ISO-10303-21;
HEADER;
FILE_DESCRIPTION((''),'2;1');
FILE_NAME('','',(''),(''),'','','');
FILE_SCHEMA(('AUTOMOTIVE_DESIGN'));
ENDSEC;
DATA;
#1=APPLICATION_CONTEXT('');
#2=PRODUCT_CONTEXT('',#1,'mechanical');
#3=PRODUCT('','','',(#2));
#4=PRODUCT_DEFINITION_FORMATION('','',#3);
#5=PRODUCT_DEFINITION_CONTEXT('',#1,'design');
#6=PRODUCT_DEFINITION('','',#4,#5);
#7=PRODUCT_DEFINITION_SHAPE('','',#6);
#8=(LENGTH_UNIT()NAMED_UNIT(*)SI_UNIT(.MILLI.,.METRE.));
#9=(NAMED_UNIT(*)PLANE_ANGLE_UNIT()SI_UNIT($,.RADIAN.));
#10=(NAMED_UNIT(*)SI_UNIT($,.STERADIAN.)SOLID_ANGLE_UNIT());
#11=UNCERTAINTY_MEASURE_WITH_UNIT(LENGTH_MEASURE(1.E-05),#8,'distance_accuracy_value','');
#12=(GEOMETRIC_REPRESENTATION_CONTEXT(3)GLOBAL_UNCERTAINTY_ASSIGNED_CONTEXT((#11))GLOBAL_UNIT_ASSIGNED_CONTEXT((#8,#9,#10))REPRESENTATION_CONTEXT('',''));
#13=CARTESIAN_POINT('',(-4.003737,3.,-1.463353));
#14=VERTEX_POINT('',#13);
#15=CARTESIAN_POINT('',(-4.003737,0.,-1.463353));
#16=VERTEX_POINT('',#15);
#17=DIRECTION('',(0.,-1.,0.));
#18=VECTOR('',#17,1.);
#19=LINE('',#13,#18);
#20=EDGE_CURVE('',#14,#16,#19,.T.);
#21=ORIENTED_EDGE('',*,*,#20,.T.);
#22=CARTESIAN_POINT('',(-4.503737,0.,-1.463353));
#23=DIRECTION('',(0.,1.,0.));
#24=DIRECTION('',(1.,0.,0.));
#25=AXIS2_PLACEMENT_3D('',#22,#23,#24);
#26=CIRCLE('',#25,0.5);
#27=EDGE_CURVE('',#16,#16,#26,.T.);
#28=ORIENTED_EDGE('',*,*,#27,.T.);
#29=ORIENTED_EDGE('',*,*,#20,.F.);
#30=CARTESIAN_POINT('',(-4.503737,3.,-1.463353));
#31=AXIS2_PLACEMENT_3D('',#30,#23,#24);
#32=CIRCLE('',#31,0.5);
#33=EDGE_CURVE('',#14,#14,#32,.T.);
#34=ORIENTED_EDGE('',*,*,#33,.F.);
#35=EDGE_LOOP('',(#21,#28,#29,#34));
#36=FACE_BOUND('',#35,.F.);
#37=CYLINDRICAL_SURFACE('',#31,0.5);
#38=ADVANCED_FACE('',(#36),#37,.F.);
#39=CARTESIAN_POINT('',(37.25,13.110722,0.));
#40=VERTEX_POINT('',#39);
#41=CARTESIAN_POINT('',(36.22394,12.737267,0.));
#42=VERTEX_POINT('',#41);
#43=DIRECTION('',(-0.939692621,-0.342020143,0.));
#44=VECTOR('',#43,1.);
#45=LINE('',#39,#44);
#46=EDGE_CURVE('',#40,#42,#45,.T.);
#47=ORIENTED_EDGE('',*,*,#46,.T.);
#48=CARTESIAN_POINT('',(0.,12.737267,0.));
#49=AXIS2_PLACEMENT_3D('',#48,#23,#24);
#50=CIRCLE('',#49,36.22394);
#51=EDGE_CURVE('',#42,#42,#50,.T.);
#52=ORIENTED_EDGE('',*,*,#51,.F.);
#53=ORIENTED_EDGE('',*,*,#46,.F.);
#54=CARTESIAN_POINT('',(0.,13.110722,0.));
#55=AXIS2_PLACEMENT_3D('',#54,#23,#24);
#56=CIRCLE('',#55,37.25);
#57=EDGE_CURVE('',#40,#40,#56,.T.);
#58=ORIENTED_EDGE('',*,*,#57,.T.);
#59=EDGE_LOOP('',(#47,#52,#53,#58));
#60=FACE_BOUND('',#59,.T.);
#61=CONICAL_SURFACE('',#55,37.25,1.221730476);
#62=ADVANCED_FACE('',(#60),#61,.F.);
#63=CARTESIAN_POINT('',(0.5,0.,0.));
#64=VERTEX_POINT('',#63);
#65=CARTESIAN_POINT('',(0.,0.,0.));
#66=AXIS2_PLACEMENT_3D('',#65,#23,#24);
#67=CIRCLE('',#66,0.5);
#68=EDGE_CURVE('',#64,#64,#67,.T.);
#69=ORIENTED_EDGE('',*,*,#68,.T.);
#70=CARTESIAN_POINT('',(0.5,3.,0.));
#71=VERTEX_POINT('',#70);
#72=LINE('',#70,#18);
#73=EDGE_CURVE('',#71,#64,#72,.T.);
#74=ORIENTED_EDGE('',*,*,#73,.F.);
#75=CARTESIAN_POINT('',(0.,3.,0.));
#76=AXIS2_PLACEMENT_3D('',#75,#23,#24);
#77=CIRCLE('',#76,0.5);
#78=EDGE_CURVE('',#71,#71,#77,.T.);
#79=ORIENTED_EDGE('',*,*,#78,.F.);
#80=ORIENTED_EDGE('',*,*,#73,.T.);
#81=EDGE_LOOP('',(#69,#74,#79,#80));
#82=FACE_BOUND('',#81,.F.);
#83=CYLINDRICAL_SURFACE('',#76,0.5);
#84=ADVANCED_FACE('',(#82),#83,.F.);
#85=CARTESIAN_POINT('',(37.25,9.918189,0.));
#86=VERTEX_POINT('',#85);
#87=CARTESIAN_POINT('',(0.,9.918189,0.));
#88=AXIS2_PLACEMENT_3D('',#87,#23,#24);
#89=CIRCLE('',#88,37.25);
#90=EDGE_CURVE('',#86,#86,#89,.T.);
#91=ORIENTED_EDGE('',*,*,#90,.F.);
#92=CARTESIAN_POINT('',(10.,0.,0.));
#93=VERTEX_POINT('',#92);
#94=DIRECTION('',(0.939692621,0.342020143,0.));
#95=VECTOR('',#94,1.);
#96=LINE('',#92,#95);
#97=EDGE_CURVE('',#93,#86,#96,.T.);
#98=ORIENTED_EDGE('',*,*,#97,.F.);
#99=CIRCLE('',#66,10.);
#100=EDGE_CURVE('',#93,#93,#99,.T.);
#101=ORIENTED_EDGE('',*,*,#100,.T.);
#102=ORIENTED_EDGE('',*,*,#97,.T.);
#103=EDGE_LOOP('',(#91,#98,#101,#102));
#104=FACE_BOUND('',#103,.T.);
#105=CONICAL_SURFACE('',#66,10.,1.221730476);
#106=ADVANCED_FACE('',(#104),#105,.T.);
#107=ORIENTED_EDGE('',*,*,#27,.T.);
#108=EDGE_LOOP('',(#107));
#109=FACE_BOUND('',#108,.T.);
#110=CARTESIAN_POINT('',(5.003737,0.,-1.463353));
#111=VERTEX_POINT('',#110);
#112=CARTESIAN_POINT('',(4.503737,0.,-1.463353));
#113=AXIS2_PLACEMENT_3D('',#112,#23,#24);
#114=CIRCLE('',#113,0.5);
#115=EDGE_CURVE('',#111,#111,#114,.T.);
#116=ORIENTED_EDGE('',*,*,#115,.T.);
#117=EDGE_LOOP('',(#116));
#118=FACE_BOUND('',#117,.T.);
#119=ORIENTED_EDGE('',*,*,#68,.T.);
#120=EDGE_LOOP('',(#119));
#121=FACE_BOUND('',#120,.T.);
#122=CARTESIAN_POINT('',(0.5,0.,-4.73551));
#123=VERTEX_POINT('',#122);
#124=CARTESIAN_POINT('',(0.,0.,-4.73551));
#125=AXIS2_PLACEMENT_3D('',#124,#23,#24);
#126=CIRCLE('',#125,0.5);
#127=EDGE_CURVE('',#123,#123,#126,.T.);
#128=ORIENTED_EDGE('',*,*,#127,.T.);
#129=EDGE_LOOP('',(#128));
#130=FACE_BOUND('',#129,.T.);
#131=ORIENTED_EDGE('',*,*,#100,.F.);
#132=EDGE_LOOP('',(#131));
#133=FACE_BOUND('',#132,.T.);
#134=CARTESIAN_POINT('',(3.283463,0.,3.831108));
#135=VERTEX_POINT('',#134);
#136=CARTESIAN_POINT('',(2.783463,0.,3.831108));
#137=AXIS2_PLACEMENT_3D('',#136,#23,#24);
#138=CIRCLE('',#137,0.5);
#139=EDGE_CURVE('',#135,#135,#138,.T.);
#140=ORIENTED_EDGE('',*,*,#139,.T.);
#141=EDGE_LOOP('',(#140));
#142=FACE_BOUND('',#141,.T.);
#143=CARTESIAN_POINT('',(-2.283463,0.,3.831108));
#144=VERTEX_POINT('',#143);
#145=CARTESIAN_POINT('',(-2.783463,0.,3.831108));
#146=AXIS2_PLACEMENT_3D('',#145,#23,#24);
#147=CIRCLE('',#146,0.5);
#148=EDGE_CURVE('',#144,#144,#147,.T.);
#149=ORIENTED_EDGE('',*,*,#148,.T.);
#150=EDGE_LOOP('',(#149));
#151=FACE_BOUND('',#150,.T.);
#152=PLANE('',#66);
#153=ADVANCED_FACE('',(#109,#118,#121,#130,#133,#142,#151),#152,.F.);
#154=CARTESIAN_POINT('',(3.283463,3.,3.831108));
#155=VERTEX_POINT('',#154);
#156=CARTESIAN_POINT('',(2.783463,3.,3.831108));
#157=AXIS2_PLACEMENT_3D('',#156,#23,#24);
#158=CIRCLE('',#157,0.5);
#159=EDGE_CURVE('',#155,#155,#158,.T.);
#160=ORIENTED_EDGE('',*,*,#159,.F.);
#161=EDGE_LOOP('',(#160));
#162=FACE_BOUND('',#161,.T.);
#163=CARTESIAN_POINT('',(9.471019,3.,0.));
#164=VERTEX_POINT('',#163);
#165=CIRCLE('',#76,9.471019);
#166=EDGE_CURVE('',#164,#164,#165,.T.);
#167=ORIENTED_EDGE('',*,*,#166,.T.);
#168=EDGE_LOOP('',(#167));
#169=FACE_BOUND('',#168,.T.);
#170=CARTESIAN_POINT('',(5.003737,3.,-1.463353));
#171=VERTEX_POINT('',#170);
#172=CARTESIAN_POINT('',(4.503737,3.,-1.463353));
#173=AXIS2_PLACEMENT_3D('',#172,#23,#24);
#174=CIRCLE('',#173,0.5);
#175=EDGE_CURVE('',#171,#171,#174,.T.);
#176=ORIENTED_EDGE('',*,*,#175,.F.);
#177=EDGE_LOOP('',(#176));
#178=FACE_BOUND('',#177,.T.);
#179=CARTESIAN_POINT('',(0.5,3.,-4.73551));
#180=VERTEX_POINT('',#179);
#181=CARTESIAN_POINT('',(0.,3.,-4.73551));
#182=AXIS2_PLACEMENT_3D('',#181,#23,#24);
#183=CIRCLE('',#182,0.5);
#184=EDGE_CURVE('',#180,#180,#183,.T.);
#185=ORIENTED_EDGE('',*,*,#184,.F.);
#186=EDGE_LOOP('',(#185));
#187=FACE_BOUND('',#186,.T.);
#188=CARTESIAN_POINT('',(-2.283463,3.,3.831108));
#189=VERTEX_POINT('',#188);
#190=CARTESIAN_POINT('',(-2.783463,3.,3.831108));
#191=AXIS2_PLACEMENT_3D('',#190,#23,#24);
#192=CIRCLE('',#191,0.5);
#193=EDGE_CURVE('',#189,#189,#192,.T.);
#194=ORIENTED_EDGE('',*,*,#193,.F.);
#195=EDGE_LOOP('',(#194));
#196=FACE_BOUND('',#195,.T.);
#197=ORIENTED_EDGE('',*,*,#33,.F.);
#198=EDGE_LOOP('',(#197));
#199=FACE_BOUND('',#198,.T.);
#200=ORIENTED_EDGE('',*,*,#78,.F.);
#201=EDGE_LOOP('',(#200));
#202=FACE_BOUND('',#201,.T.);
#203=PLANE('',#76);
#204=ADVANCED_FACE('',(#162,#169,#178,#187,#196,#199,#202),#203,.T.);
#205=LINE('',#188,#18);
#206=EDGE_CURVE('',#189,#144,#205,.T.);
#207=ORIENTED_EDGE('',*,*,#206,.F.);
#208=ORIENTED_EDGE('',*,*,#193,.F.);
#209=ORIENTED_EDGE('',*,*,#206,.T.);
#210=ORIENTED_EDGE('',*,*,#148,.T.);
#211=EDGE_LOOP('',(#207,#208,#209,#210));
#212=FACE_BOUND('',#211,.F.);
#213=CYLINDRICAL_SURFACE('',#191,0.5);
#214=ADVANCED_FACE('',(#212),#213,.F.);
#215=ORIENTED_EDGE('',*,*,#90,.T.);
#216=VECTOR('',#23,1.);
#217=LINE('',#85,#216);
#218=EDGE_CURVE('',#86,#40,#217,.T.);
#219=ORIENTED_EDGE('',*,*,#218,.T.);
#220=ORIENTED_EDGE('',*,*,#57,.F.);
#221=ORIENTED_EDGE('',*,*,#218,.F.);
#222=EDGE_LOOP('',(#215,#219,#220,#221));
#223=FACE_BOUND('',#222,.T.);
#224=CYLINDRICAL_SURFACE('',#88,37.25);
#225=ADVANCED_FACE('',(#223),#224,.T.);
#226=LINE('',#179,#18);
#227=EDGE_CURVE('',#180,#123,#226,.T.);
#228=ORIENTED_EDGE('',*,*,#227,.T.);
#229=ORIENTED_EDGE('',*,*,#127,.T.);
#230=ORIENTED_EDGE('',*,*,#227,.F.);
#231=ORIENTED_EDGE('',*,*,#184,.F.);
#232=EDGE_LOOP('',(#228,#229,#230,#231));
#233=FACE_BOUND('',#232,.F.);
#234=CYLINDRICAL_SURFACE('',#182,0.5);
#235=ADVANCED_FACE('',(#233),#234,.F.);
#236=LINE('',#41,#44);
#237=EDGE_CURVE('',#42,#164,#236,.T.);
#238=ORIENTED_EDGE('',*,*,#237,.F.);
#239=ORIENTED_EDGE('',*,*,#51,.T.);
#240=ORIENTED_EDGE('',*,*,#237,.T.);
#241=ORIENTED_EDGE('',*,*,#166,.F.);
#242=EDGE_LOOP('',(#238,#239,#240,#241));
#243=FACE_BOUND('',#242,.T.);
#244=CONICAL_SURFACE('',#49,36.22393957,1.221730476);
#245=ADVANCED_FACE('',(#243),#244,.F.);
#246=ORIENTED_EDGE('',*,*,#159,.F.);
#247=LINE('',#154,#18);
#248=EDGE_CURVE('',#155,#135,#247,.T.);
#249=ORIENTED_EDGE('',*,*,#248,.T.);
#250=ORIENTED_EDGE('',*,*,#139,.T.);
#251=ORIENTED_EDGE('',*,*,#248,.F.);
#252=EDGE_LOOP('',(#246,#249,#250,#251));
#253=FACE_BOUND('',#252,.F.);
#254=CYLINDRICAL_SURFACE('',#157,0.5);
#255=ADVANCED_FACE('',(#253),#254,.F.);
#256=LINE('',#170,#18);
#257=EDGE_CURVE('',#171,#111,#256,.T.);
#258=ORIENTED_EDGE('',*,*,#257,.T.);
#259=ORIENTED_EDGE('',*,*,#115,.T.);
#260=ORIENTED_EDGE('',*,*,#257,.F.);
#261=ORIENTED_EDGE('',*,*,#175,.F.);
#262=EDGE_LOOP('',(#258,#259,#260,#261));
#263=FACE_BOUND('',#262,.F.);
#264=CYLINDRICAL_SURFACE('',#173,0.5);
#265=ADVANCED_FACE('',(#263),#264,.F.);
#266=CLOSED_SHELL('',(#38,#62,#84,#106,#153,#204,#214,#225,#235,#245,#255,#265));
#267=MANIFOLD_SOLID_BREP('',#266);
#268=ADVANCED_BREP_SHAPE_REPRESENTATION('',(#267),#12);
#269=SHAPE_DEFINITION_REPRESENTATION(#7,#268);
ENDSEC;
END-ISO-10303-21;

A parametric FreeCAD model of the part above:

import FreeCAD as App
import Part
import Sketcher
Q = App.Units.Quantity

doc = App.newDocument("Part")
body = doc.addObject("PartDesign::Body", "Body")

sketch1 = body.newObject("Sketcher::SketchObject", "Sketch")
sketch1.AttachmentSupport = (doc.getObject("XY_Plane"), [""])
sketch1.MapMode = "FlatFace"
sketch1.addGeometry(Part.LineSegment(App.Vector(0, 0, 0), App.Vector(10, 0, 0)), False)
sketch1.addGeometry(Part.LineSegment(App.Vector(10, 0, 0), App.Vector(37.2, 9.9, 0)), False)
sketch1.addGeometry(Part.LineSegment(App.Vector(37.2, 9.9, 0), App.Vector(37.2, 13.1, 0)), False)
sketch1.addGeometry(Part.LineSegment(App.Vector(37.2, 13.1, 0), App.Vector(36.2, 12.7, 0)), False)
sketch1.addGeometry(Part.LineSegment(App.Vector(36.2, 12.7, 0), App.Vector(9.5, 3, 0)), False)
sketch1.addGeometry(Part.LineSegment(App.Vector(9.5, 3, 0), App.Vector(0, 3, 0)), False)
sketch1.addGeometry(Part.LineSegment(App.Vector(0, 3, 0), App.Vector(0, 0, 0)), False)
sketch1.addConstraint(Sketcher.Constraint("Coincident", 0, 2, 1, 1))
sketch1.addConstraint(Sketcher.Constraint("Coincident", 1, 2, 2, 1))
sketch1.addConstraint(Sketcher.Constraint("Coincident", 2, 2, 3, 1))
sketch1.addConstraint(Sketcher.Constraint("Coincident", 3, 2, 4, 1))
sketch1.addConstraint(Sketcher.Constraint("Coincident", 4, 2, 5, 1))
sketch1.addConstraint(Sketcher.Constraint("Coincident", 5, 2, 6, 1))
sketch1.addConstraint(Sketcher.Constraint("Coincident", 6, 2, 0, 1))
sketch1.addConstraint(Sketcher.Constraint("Horizontal", 0))
sketch1.addConstraint(Sketcher.Constraint("Vertical", 2))
sketch1.addConstraint(Sketcher.Constraint("Horizontal", 5))
sketch1.addConstraint(Sketcher.Constraint("Vertical", 6))
sketch1.addConstraint(Sketcher.Constraint("Coincident", 6, 2, -1, 1))
sketch1.addConstraint(Sketcher.Constraint("Parallel", 1, 3))
sketch1.addConstraint(Sketcher.Constraint("Parallel", 3, 4))
sketch1.addConstraint(Sketcher.Constraint("DistanceX", 0, 1, 0, 2, Q("10 mm")))
sketch1.addConstraint(Sketcher.Constraint("DistanceY", 6, 2, 6, 1, Q("3 mm")))
sketch1.addConstraint(Sketcher.Constraint("Angle", 1, Q("20 deg")))
sketch1.addConstraint(Sketcher.Constraint("DistanceX", -1, 1, 1, 2, Q("37.25 mm")))
sketch1.addConstraint(Sketcher.Constraint("DistanceX", 5, 2, 5, 1, Q("9.471019 mm")))
sketch1.addConstraint(Sketcher.Constraint("Distance", 3, Q("1.091911 mm")))
revolution = body.newObject("PartDesign::Revolution", "Revolution")
revolution.Profile = sketch1
revolution.ReferenceAxis = (sketch1, ["V_Axis"])
revolution.Angle = 360

sketch2 = body.newObject("Sketcher::SketchObject", "Sketch001")
sketch2.AttachmentSupport = (doc.getObject("XZ_Plane"), [""])
sketch2.MapMode = "FlatFace"
sketch2.AttachmentOffset = App.Placement(App.Vector(0, 0, -3), App.Rotation())
sketch2.addGeometry(Part.Circle(App.Vector(0, -4.7, 0), App.Vector(0, 0, 1), 0.5), False)
sketch2.addGeometry(Part.Circle(App.Vector(0, 0, 0), App.Vector(0, 0, 1), 0.5), False)
sketch2.addGeometry(Part.Circle(App.Vector(4.5, -1.5, 0), App.Vector(0, 0, 1), 0.5), False)
sketch2.addGeometry(Part.Circle(App.Vector(2.8, 3.8, 0), App.Vector(0, 0, 1), 0.5), False)
sketch2.addGeometry(Part.Circle(App.Vector(-2.8, 3.8, 0), App.Vector(0, 0, 1), 0.5), False)
sketch2.addGeometry(Part.Circle(App.Vector(-4.5, -1.5, 0), App.Vector(0, 0, 1), 0.5), False)
sketch2.addConstraint(Sketcher.Constraint("Coincident", 1, 3, -1, 1))
sketch2.addConstraint(Sketcher.Constraint("Equal", 0, 1))
sketch2.addConstraint(Sketcher.Constraint("Equal", 1, 2))
sketch2.addConstraint(Sketcher.Constraint("Equal", 2, 3))
sketch2.addConstraint(Sketcher.Constraint("Equal", 3, 4))
sketch2.addConstraint(Sketcher.Constraint("Equal", 4, 5))
sketch2.addConstraint(Sketcher.Constraint("Symmetric", 3, 3, 4, 3, -2))
sketch2.addConstraint(Sketcher.Constraint("Symmetric", 2, 3, 5, 3, -2))
sketch2.addConstraint(Sketcher.Constraint("PointOnObject", 0, 3, -2))
sketch2.addConstraint(Sketcher.Constraint("Diameter", 0, Q("1 mm")))
sketch2.addConstraint(Sketcher.Constraint("DistanceX", 4, 3, 2, 3, Q("7.2872 mm")))
sketch2.addConstraint(Sketcher.Constraint("DistanceY", 0, 3, -1, 1, Q("4.73551 mm")))
sketch2.addConstraint(Sketcher.Constraint("DistanceY", 2, 3, 3, 3, Q("5.294461 mm")))
sketch2.addConstraint(Sketcher.Constraint("DistanceX", -1, 1, 2, 3, Q("4.503737 mm")))
sketch2.addConstraint(Sketcher.Constraint("DistanceY", 2, 3, -1, 1, Q("1.463353 mm")))
pocket1 = body.newObject("PartDesign::Pocket", "Pocket")
pocket1.Profile = sketch2
pocket1.Length = 18
pocket1.Reversed = True

doc.recompute()
